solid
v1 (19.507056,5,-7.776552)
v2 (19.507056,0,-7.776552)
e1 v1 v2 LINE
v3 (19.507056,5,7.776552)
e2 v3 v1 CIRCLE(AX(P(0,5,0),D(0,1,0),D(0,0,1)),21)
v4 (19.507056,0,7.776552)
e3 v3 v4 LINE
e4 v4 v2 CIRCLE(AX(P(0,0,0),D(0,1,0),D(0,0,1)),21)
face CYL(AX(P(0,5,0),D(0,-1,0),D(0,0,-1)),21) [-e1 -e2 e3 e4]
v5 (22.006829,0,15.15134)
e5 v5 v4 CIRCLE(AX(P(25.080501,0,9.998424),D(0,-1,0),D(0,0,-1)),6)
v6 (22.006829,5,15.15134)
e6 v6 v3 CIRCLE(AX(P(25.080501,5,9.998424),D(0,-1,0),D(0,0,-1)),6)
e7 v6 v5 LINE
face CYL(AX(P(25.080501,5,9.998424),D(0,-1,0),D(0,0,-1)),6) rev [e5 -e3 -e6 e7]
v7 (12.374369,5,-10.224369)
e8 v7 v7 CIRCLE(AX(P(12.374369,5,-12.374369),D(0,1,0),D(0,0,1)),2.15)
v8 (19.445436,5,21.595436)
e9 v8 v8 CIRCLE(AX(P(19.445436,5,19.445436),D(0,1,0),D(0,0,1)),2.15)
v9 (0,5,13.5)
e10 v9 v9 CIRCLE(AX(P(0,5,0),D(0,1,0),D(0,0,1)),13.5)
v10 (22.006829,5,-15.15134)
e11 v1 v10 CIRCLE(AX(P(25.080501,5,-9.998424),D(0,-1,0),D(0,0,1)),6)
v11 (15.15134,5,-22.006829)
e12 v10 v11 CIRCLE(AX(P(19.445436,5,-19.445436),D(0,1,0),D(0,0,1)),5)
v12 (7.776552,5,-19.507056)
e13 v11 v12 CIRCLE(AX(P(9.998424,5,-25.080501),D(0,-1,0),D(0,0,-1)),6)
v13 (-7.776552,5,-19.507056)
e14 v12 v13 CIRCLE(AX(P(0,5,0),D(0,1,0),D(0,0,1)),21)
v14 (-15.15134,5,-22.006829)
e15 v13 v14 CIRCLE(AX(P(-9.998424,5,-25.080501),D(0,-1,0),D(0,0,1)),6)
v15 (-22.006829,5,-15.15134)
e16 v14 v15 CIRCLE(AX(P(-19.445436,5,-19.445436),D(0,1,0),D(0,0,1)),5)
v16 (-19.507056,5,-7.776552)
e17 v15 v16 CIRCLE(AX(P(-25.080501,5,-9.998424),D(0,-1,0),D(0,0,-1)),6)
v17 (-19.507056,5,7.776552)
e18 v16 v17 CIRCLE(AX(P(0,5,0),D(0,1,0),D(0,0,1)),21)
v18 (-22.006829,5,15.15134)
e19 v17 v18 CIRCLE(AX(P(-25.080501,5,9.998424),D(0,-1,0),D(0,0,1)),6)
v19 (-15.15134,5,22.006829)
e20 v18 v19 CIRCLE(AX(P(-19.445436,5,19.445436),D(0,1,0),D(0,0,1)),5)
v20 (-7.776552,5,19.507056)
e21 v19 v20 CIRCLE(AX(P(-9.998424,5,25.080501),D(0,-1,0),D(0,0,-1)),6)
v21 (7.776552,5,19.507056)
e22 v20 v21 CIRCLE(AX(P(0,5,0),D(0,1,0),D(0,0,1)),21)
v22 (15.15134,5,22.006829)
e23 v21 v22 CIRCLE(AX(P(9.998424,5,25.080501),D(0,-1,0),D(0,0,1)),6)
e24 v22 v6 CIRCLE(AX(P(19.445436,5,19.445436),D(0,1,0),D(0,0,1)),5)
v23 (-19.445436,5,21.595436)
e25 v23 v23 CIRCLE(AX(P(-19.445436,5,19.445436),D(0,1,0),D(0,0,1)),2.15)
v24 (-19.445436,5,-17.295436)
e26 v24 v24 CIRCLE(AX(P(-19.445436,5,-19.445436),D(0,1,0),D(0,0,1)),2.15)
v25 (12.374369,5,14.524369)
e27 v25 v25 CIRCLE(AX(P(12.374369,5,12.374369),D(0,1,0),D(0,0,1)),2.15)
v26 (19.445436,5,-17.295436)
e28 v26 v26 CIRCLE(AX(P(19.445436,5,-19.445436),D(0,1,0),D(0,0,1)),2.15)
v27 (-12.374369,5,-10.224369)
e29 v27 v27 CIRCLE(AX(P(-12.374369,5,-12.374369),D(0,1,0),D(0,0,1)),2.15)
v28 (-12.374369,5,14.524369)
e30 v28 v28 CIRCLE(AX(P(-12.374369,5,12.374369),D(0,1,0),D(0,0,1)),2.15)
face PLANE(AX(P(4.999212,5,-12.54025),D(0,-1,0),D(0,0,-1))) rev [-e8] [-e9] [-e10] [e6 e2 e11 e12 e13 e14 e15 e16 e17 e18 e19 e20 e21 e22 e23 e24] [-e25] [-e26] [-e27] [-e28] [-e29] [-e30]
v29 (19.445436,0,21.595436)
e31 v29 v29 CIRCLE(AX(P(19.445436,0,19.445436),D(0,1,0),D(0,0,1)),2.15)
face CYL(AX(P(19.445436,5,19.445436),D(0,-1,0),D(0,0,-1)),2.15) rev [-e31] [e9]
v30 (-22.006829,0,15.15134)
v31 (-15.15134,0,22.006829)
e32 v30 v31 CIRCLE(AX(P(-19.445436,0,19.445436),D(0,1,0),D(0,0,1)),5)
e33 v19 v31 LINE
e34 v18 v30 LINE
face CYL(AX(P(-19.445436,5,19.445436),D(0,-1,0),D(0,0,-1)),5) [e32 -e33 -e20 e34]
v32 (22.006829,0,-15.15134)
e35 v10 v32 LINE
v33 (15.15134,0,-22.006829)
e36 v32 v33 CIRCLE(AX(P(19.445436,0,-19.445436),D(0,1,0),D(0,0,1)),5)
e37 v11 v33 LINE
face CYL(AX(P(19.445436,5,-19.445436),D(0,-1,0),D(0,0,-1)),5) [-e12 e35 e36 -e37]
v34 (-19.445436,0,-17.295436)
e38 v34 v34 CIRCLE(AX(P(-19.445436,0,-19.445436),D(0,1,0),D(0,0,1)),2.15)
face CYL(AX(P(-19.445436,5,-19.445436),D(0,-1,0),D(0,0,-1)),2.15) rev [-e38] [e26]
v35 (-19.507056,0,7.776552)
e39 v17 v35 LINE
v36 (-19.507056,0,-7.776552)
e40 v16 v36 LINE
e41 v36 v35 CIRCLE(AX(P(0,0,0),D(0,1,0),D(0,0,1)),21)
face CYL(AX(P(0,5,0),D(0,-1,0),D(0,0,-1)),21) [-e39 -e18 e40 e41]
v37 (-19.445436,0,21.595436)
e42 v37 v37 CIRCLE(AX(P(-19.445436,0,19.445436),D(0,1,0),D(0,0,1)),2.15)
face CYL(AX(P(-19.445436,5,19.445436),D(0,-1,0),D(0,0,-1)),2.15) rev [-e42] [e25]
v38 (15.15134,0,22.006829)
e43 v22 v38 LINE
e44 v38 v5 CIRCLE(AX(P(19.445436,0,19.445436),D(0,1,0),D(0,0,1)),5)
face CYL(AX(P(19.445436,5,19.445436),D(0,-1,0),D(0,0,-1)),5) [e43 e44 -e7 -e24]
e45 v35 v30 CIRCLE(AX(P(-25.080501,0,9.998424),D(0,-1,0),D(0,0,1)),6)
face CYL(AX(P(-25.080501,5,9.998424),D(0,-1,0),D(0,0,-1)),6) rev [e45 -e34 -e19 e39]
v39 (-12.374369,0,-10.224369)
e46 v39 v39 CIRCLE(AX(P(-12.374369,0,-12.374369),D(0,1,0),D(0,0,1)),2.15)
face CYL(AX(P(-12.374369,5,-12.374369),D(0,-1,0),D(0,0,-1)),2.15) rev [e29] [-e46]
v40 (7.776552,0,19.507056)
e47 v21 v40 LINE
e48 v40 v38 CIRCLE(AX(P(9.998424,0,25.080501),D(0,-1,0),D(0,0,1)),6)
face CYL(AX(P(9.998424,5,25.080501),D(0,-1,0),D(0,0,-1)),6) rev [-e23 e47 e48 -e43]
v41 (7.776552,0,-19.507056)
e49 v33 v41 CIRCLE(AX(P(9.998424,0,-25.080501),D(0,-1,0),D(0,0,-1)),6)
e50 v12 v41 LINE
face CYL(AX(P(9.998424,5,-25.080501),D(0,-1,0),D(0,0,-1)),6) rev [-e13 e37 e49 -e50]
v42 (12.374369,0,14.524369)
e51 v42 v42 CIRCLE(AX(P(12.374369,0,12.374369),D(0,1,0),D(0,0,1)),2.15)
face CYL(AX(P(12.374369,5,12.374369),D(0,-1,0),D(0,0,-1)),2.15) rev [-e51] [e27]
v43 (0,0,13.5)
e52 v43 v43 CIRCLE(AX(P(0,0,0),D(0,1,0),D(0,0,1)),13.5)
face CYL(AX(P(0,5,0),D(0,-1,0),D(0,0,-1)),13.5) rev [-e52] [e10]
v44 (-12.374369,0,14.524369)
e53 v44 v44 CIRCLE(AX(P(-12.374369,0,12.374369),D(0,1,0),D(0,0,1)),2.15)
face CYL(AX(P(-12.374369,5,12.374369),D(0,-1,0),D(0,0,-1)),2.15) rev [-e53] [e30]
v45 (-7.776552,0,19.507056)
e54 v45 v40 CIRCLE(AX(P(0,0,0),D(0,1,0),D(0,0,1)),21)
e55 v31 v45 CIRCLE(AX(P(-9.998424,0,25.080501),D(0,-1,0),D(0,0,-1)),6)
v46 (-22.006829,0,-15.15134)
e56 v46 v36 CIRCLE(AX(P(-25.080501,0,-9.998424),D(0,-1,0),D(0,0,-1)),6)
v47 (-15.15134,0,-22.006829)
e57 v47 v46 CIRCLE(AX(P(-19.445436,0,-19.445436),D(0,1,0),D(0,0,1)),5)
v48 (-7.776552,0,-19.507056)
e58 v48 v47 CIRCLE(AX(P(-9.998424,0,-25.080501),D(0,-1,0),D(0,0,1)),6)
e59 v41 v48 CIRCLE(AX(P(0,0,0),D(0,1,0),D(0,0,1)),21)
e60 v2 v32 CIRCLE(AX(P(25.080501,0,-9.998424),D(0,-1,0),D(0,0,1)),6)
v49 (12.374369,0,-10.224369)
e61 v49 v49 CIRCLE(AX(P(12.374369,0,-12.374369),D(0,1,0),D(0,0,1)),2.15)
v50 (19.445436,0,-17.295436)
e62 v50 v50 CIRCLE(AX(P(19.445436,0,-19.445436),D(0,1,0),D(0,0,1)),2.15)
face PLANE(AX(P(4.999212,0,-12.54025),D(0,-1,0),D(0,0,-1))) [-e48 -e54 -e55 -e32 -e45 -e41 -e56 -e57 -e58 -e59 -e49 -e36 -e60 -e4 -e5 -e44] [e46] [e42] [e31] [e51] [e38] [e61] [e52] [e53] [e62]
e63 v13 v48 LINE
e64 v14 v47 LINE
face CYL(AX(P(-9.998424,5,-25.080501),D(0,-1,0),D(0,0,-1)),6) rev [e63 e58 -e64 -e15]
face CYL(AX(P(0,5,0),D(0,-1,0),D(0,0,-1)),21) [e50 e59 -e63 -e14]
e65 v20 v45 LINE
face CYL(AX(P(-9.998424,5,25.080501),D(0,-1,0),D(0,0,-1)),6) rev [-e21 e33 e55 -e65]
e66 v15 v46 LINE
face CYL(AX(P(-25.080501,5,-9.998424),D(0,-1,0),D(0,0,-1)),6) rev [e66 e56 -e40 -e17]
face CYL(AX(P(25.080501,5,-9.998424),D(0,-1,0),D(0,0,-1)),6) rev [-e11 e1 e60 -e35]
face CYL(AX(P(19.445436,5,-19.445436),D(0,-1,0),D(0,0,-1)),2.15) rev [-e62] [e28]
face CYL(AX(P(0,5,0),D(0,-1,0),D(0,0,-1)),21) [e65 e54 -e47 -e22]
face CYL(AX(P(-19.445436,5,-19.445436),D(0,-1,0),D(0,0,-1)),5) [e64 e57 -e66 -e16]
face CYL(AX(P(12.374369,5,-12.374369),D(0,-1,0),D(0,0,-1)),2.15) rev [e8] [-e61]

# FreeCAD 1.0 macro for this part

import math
import FreeCAD as App
import Part
import Sketcher
from FreeCAD import Vector
Q = App.Units.Quantity

doc = App.newDocument("Part")
body = doc.addObject("PartDesign::Body", "Body")

# Sketch on XZ plane
sketch1 = body.newObject("Sketcher::SketchObject", "Sketch")
sketch1.AttachmentSupport = (doc.getObject("XZ_Plane"), [""])
sketch1.MapMode = "FlatFace"
sketch1.addGeometry([
    Part.ArcOfCircle(Part.Circle(Vector(0, 0, 0), Vector(0, 0, 1), 21), math.radians(-22), math.radians(22)),  # 0
    Part.ArcOfCircle(Part.Circle(Vector(25.1, -10, 0), Vector(0, 0, 1), 6), math.radians(158), math.radians(239)),  # 1
    Part.ArcOfCircle(Part.Circle(Vector(19.4, -19.4, 0), Vector(0, 0, 1), 5), math.radians(-149), math.radians(59)),  # 2
    Part.ArcOfCircle(Part.Circle(Vector(10, -25.1, 0), Vector(0, 0, 1), 6), math.radians(31), math.radians(112)),  # 3
    Part.ArcOfCircle(Part.Circle(Vector(0, 0, 0), Vector(0, 0, 1), 21), math.radians(-112), math.radians(-68)),  # 4
    Part.ArcOfCircle(Part.Circle(Vector(-10, -25.1, 0), Vector(0, 0, 1), 6), math.radians(68), math.radians(149)),  # 5
    Part.ArcOfCircle(Part.Circle(Vector(-19.4, -19.4, 0), Vector(0, 0, 1), 5), math.radians(121), math.radians(329)),  # 6
    Part.ArcOfCircle(Part.Circle(Vector(-25.1, -10, 0), Vector(0, 0, 1), 6), math.radians(-59), math.radians(22)),  # 7
    Part.ArcOfCircle(Part.Circle(Vector(0, 0, 0), Vector(0, 0, 1), 21), math.radians(158), math.radians(202)),  # 8
    Part.ArcOfCircle(Part.Circle(Vector(-25.1, 10, 0), Vector(0, 0, 1), 6), math.radians(-22), math.radians(59)),  # 9
    Part.ArcOfCircle(Part.Circle(Vector(-19.4, 19.4, 0), Vector(0, 0, 1), 5), math.radians(31), math.radians(239)),  # 10
    Part.ArcOfCircle(Part.Circle(Vector(-10, 25.1, 0), Vector(0, 0, 1), 6), math.radians(-149), math.radians(-68)),  # 11
    Part.ArcOfCircle(Part.Circle(Vector(0, 0, 0), Vector(0, 0, 1), 21), math.radians(68), math.radians(112)),  # 12
    Part.ArcOfCircle(Part.Circle(Vector(10, 25.1, 0), Vector(0, 0, 1), 6), math.radians(-112), math.radians(-31)),  # 13
    Part.ArcOfCircle(Part.Circle(Vector(19.4, 19.4, 0), Vector(0, 0, 1), 5), math.radians(-59), math.radians(149)),  # 14
    Part.ArcOfCircle(Part.Circle(Vector(25.1, 10, 0), Vector(0, 0, 1), 6), math.radians(121), math.radians(202)),  # 15
    Part.Circle(Vector(-19.4, 19.4, 0), Vector(0, 0, 1), 2.1),  # 16
    Part.Circle(Vector(-12.4, 12.4, 0), Vector(0, 0, 1), 2.1),  # 17
    Part.Circle(Vector(19.4, 19.4, 0), Vector(0, 0, 1), 2.1),  # 18
    Part.Circle(Vector(12.4, 12.4, 0), Vector(0, 0, 1), 2.1),  # 19
    Part.Circle(Vector(-12.4, -12.4, 0), Vector(0, 0, 1), 2.1),  # 20
    Part.Circle(Vector(-19.4, -19.4, 0), Vector(0, 0, 1), 2.1),  # 21
    Part.Circle(Vector(0, 0, 0), Vector(0, 0, 1), 13.5),  # 22
    Part.Circle(Vector(12.4, -12.4, 0), Vector(0, 0, 1), 2.1),  # 23
    Part.Circle(Vector(19.4, -19.4, 0), Vector(0, 0, 1), 2.1),  # 24
], False)
sketch1.addConstraint([
    Sketcher.Constraint("Tangent", 0, 1, 1, 1),
    Sketcher.Constraint("Tangent", 1, 2, 2, 2),
    Sketcher.Constraint("Tangent", 2, 1, 3, 1),
    Sketcher.Constraint("Tangent", 3, 2, 4, 2),
    Sketcher.Constraint("Tangent", 4, 1, 5, 1),
    Sketcher.Constraint("Tangent", 5, 2, 6, 2),
    Sketcher.Constraint("Tangent", 6, 1, 7, 1),
    Sketcher.Constraint("Tangent", 7, 2, 8, 2),
    Sketcher.Constraint("Tangent", 8, 1, 9, 1),
    Sketcher.Constraint("Tangent", 9, 2, 10, 2),
    Sketcher.Constraint("Tangent", 10, 1, 11, 1),
    Sketcher.Constraint("Tangent", 11, 2, 12, 2),
    Sketcher.Constraint("Tangent", 12, 1, 13, 1),
    Sketcher.Constraint("Tangent", 13, 2, 14, 2),
    Sketcher.Constraint("Tangent", 14, 1, 15, 1),
    Sketcher.Constraint("Tangent", 15, 2, 0, 2),
    Sketcher.Constraint("Coincident", 0, 3, -1, 1),
    Sketcher.Constraint("Coincident", 4, 3, -1, 1),
    Sketcher.Constraint("Coincident", 8, 3, -1, 1),
    Sketcher.Constraint("Coincident", 12, 3, -1, 1),
    Sketcher.Constraint("Coincident", 22, 3, -1, 1),
    Sketcher.Constraint("Coincident", 16, 3, 10, 3),
    Sketcher.Constraint("Coincident", 18, 3, 14, 3),
    Sketcher.Constraint("Coincident", 21, 3, 6, 3),
    Sketcher.Constraint("Coincident", 24, 3, 2, 3),
    Sketcher.Constraint("Equal", 1, 3),
    Sketcher.Constraint("Equal", 0, 4),
    Sketcher.Constraint("Equal", 3, 5),
    Sketcher.Constraint("Equal", 2, 6),
    Sketcher.Constraint("Equal", 5, 7),
    Sketcher.Constraint("Equal", 4, 8),
    Sketcher.Constraint("Equal", 7, 9),
    Sketcher.Constraint("Equal", 6, 10),
    Sketcher.Constraint("Equal", 9, 11),
    Sketcher.Constraint("Equal", 8, 12),
    Sketcher.Constraint("Equal", 11, 13),
    Sketcher.Constraint("Equal", 10, 14),
    Sketcher.Constraint("Equal", 13, 15),
    Sketcher.Constraint("Equal", 16, 17),
    Sketcher.Constraint("Equal", 17, 18),
    Sketcher.Constraint("Equal", 18, 19),
    Sketcher.Constraint("Equal", 19, 20),
    Sketcher.Constraint("Equal", 20, 21),
    Sketcher.Constraint("Equal", 21, 23),
    Sketcher.Constraint("Equal", 23, 24),
    Sketcher.Constraint("Symmetric", 2, 3, 10, 3, -1, 1),
    Sketcher.Constraint("Symmetric", 6, 3, 14, 3, -1, 1),
    Sketcher.Constraint("Symmetric", 19, 3, 20, 3, -1, 1),
    Sketcher.Constraint("Symmetric", 17, 3, 23, 3, -1, 1),
    Sketcher.Constraint("Symmetric", 2, 3, 6, 3, -2),
    Sketcher.Constraint("Symmetric", 17, 3, 19, 3, -2),
    Sketcher.Constraint("Diameter", 22, Q("27 mm")),
    Sketcher.Constraint("Radius", 0, Q("21 mm")),
    Sketcher.Constraint("Radius", 1, Q("6 mm")),
    Sketcher.Constraint("Radius", 2, Q("5 mm")),
    Sketcher.Constraint("Diameter", 16, Q("4.3 mm")),
    Sketcher.Constraint("DistanceX", -1, 1, 1, 3, Q("25.080501 mm")),
    Sketcher.Constraint("DistanceY", 3, 3, -1, 1, Q("25.080501 mm")),
    Sketcher.Constraint("DistanceX", 17, 3, -1, 1, Q("12.374369 mm")),
    Sketcher.Constraint("DistanceY", -1, 1, 17, 3, Q("12.374369 mm")),
])
pad1 = body.newObject("PartDesign::Pad", "Pad")
pad1.Profile = sketch1
pad1.Length = 5
pad1.Reversed = True

doc.recompute()
